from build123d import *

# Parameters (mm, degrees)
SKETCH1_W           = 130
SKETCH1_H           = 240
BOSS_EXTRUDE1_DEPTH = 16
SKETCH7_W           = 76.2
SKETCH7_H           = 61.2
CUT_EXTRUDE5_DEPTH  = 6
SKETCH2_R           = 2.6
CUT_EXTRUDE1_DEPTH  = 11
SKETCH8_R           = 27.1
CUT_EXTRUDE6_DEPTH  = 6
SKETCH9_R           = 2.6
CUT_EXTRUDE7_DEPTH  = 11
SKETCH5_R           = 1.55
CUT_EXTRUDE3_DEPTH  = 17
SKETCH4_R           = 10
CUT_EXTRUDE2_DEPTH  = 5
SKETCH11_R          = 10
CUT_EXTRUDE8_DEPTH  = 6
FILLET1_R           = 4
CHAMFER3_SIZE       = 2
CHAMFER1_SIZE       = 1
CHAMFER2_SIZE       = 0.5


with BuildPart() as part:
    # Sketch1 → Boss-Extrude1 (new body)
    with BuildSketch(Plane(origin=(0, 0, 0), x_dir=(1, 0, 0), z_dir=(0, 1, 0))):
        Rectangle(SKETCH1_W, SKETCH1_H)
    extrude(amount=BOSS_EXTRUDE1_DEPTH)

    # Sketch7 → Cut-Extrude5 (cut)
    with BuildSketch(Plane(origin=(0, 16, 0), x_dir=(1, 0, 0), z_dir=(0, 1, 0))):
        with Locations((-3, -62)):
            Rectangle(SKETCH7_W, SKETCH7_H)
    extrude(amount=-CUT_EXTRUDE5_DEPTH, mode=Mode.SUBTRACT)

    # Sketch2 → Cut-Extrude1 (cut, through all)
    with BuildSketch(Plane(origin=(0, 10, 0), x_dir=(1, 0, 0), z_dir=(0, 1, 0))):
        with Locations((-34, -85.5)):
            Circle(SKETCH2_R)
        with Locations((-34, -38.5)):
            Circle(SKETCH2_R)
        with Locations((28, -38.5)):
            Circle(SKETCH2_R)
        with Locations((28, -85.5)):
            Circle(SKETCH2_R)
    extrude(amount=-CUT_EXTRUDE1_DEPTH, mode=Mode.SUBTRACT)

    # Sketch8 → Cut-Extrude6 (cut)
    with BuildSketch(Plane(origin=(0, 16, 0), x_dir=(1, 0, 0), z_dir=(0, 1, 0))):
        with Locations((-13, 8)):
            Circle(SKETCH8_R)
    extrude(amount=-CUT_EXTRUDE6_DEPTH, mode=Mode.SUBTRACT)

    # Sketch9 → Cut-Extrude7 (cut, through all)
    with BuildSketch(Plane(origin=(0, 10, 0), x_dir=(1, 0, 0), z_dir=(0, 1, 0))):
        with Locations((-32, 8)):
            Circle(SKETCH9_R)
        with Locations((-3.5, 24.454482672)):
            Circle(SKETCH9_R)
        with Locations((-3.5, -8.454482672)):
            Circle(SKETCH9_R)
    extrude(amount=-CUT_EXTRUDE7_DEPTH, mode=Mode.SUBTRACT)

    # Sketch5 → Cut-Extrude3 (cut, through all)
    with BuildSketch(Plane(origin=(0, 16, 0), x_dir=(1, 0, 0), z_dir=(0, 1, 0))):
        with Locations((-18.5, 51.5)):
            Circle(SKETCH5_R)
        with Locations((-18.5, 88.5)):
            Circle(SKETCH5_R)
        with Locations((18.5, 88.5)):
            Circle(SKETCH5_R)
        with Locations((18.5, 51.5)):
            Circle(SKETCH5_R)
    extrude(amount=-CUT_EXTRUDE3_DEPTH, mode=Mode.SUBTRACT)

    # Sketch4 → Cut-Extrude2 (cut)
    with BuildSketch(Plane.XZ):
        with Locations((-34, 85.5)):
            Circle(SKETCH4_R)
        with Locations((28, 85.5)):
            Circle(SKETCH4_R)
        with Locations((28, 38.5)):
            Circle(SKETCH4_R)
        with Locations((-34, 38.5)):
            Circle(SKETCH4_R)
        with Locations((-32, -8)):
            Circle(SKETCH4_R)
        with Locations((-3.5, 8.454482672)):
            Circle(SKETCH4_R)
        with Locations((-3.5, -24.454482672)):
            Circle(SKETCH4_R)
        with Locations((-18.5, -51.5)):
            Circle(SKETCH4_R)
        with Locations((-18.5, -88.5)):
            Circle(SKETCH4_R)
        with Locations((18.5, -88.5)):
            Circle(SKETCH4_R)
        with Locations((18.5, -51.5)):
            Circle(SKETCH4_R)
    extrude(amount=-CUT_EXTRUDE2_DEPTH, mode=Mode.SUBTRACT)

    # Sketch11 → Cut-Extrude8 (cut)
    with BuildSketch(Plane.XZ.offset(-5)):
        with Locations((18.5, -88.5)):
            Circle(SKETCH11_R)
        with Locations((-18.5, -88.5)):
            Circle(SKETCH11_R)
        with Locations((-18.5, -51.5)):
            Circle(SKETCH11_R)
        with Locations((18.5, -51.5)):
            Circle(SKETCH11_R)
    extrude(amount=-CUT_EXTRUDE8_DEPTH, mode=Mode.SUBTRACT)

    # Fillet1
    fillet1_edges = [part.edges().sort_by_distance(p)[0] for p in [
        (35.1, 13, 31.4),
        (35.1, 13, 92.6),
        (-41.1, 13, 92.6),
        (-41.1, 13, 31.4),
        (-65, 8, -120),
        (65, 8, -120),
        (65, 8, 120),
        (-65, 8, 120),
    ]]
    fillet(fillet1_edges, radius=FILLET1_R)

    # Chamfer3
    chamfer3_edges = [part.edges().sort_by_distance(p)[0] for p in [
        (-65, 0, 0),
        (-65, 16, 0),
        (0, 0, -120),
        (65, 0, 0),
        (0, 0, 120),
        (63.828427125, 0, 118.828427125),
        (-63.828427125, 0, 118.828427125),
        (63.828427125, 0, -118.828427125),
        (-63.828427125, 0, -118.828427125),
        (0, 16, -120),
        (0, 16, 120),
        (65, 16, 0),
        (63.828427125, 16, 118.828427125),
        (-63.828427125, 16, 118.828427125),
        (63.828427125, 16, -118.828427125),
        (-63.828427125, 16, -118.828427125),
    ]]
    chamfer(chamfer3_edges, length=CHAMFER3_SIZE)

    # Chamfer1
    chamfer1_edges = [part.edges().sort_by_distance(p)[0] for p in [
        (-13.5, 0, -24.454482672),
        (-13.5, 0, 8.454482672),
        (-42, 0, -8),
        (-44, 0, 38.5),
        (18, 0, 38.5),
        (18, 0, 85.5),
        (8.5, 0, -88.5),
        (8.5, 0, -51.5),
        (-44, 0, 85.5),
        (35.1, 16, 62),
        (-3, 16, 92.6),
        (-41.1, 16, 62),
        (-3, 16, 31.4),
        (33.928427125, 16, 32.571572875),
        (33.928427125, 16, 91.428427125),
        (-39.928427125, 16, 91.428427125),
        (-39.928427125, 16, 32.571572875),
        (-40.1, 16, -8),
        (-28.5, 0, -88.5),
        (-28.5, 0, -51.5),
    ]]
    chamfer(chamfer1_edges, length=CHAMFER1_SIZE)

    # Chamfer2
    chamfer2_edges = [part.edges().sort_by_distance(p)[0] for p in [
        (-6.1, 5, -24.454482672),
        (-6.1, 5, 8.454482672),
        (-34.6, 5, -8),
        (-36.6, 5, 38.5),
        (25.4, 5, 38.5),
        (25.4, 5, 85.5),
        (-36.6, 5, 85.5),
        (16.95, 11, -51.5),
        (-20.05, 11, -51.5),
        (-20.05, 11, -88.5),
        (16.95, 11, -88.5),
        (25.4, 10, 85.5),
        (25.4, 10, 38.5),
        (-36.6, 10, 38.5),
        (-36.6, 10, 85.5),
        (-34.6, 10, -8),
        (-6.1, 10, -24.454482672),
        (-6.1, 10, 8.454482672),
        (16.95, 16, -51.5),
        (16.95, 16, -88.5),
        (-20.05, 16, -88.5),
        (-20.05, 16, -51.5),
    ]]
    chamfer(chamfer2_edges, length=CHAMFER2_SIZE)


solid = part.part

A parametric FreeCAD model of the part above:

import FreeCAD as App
import Part
import Sketcher


def edges_at(feature, points):
    """Names of the edges that pass closest to the given points."""
    edges = feature.Shape.Edges
    near = lambda p: min(range(len(edges)), key=lambda i: edges[i].distToShape(Part.Vertex(*p))[0])
    return sorted({f"Edge{near(p) + 1}" for p in points})

doc = App.newDocument("Part")
params = doc.addObject("Spreadsheet::Sheet", "Params")
for row, (alias, value) in enumerate([
    ("sketch1_width", "130 mm"),
    ("sketch1_height", "240 mm"),
    ("pad1_length", "16 mm"),
    ("sketch2_width", "76.2 mm"),
    ("sketch2_height", "61.2 mm"),
    ("pocket1_length", "6 mm"),
    ("sketch3_diameter", "5.2 mm"),
    ("sketch4_diameter", "54.2 mm"),
    ("pocket3_length", "6 mm"),
    ("sketch5_diameter", "5.2 mm"),
    ("sketch6_diameter", "3.1 mm"),
    ("sketch7_diameter", "20 mm"),
    ("pocket6_length", "5 mm"),
    ("sketch8_diameter", "20 mm"),
    ("pocket7_length", "6 mm"),
    ("fillet_radius", "4 mm"),
    ("chamfer_size", "2 mm"),
    ("chamfer2_size", "1 mm"),
    ("chamfer3_size", "0.5 mm"),
], start=1):
    params.set(f"A{row}", alias)
    params.set(f"B{row}", "=" + value)
    params.setAlias(f"B{row}", alias)

body = doc.addObject("PartDesign::Body", "Body")

# Sketch on XZ plane
sketch1 = body.newObject("Sketcher::SketchObject", "Sketch")
sketch1.AttachmentSupport = (doc.getObject("XZ_Plane"), [""])
sketch1.MapMode = "FlatFace"
sketch1.addGeometry([
    Part.LineSegment(App.Vector(-65, -120, 0), App.Vector(-65, 120, 0)),
    Part.LineSegment(App.Vector(-65, 120, 0), App.Vector(65, 120, 0)),
    Part.LineSegment(App.Vector(65, 120, 0), App.Vector(65, -120, 0)),
    Part.LineSegment(App.Vector(65, -120, 0), App.Vector(-65, -120, 0)),
], False)
sketch1.addConstraint([
    Sketcher.Constraint("Coincident", 0, 2, 1, 1),
    Sketcher.Constraint("Coincident", 1, 2, 2, 1),
    Sketcher.Constraint("Coincident", 2, 2, 3, 1),
    Sketcher.Constraint("Coincident", 3, 2, 0, 1),
    Sketcher.Constraint("Vertical", 0),
    Sketcher.Constraint("Horizontal", 1),
    Sketcher.Constraint("Vertical", 2),
    Sketcher.Constraint("Horizontal", 3),
    Sketcher.Constraint("Symmetric", 0, 2, 2, 2, -1, 1),
    Sketcher.Constraint("DistanceX", 1, 1, 1, 2, 130.0),
    Sketcher.Constraint("DistanceY", 0, 1, 0, 2, 240.0),
])
sketch1.setExpression("Constraints[9]", "Params.sketch1_width")
sketch1.setExpression("Constraints[10]", "Params.sketch1_height")
pad1 = body.newObject("PartDesign::Pad", "Pad")
pad1.Profile = sketch1
pad1.setExpression("Length", "Params.pad1_length")
pad1.Reversed = True

# Sketch on XZ plane
sketch2 = body.newObject("Sketcher::SketchObject", "Sketch001")
sketch2.AttachmentSupport = (doc.getObject("XZ_Plane"), [""])
sketch2.MapMode = "FlatFace"
sketch2.AttachmentOffset = App.Placement(App.Vector(0, 0, -16), App.Rotation())
sketch2.addGeometry([
    Part.LineSegment(App.Vector(-41, 31, 0), App.Vector(-41, 93, 0)),
    Part.LineSegment(App.Vector(-41, 93, 0), App.Vector(35, 93, 0)),
    Part.LineSegment(App.Vector(35, 93, 0), App.Vector(35, 31, 0)),
    Part.LineSegment(App.Vector(35, 31, 0), App.Vector(-41, 31, 0)),
], False)
sketch2.addConstraint([
    Sketcher.Constraint("Coincident", 0, 2, 1, 1),
    Sketcher.Constraint("Coincident", 1, 2, 2, 1),
    Sketcher.Constraint("Coincident", 2, 2, 3, 1),
    Sketcher.Constraint("Coincident", 3, 2, 0, 1),
    Sketcher.Constraint("Vertical", 0),
    Sketcher.Constraint("Horizontal", 1),
    Sketcher.Constraint("Vertical", 2),
    Sketcher.Constraint("Horizontal", 3),
    Sketcher.Constraint("DistanceX", 1, 1, 1, 2, 76.2),
    Sketcher.Constraint("DistanceY", 0, 1, 0, 2, 61.2),
    Sketcher.Constraint("DistanceX", 0, 2, -1, 1, 41.1),
    Sketcher.Constraint("DistanceY", -1, 1, 0, 2, 92.6),
])
sketch2.setExpression("Constraints[8]", "Params.sketch2_width")
sketch2.setExpression("Constraints[9]", "Params.sketch2_height")
pocket1 = body.newObject("PartDesign::Pocket", "Pocket")
pocket1.Profile = sketch2
pocket1.setExpression("Length", "Params.pocket1_length")
pocket1.Reversed = True

# Sketch on XZ plane
sketch3 = body.newObject("Sketcher::SketchObject", "Sketch002")
sketch3.AttachmentSupport = (doc.getObject("XZ_Plane"), [""])
sketch3.MapMode = "FlatFace"
sketch3.AttachmentOffset = App.Placement(App.Vector(0, 0, -10), App.Rotation())
sketch3.addGeometry([
    Part.Circle(App.Vector(-34, 85.5, 0), App.Vector(0, 0, 1), 2.6),
    Part.Circle(App.Vector(-34, 38.5, 0), App.Vector(0, 0, 1), 2.6),
    Part.Circle(App.Vector(28, 38.5, 0), App.Vector(0, 0, 1), 2.6),
    Part.Circle(App.Vector(28, 85.5, 0), App.Vector(0, 0, 1), 2.6),
], False)
sketch3.addConstraint([
    Sketcher.Constraint("Equal", 0, 1),
    Sketcher.Constraint("Equal", 1, 2),
    Sketcher.Constraint("Equal", 2, 3),
    Sketcher.Constraint("Horizontal", 1, 3, 2, 3),
    Sketcher.Constraint("Horizontal", 0, 3, 3, 3),
    Sketcher.Constraint("Vertical", 0, 3, 1, 3),
    Sketcher.Constraint("Vertical", 2, 3, 3, 3),
    Sketcher.Constraint("Diameter", 0, 5.2),
    Sketcher.Constraint("DistanceX", 0, 3, -1, 1, 34.0),
    Sketcher.Constraint("DistanceX", -1, 1, 2, 3, 28.0),
    Sketcher.Constraint("DistanceY", 1, 3, 0, 3, 47.0),
    Sketcher.Constraint("DistanceY", -1, 1, 0, 3, 85.5),
])
sketch3.setExpression("Constraints[7]", "Params.sketch3_diameter")
pocket2 = body.newObject("PartDesign::Pocket", "Pocket001")
pocket2.Profile = sketch3
pocket2.Type = "ThroughAll"
pocket2.Reversed = True

# Sketch on XZ plane
sketch4 = body.newObject("Sketcher::SketchObject", "Sketch003")
sketch4.AttachmentSupport = (doc.getObject("XZ_Plane"), [""])
sketch4.MapMode = "FlatFace"
sketch4.AttachmentOffset = App.Placement(App.Vector(0, 0, -16), App.Rotation())
sketch4.addGeometry(Part.Circle(App.Vector(-13, -8, 0), App.Vector(0, 0, 1), 27), False)
sketch4.addConstraint([
    Sketcher.Constraint("Diameter", 0, 54.2),
    Sketcher.Constraint("DistanceX", 0, 3, -1, 1, 13.0),
    Sketcher.Constraint("DistanceY", 0, 3, -1, 1, 8.0),
])
sketch4.setExpression("Constraints[0]", "Params.sketch4_diameter")
pocket3 = body.newObject("PartDesign::Pocket", "Pocket002")
pocket3.Profile = sketch4
pocket3.setExpression("Length", "Params.pocket3_length")
pocket3.Reversed = True

# Sketch on XZ plane
sketch5 = body.newObject("Sketcher::SketchObject", "Sketch004")
sketch5.AttachmentSupport = (doc.getObject("XZ_Plane"), [""])
sketch5.MapMode = "FlatFace"
sketch5.AttachmentOffset = App.Placement(App.Vector(0, 0, -10), App.Rotation())
sketch5.addGeometry([
    Part.Circle(App.Vector(-32, -8, 0), App.Vector(0, 0, 1), 2.6),
    Part.Circle(App.Vector(-3.5, -24.5, 0), App.Vector(0, 0, 1), 2.6),
    Part.Circle(App.Vector(-3.5, 8.5, 0), App.Vector(0, 0, 1), 2.6),
], False)
sketch5.addConstraint([
    Sketcher.Constraint("Equal", 0, 1),
    Sketcher.Constraint("Equal", 1, 2),
    Sketcher.Constraint("Vertical", 1, 3, 2, 3),
    Sketcher.Constraint("Diameter", 0, 5.2),
    Sketcher.Constraint("DistanceX", 0, 3, -1, 1, 32.0),
    Sketcher.Constraint("DistanceY", 0, 3, -1, 1, 8.0),
    Sketcher.Constraint("DistanceX", 1, 3, -1, 1, 3.5),
    Sketcher.Constraint("DistanceY", 1, 3, -1, 1, 24.454483),
    Sketcher.Constraint("DistanceY", -1, 1, 2, 3, 8.454483),
])
sketch5.setExpression("Constraints[3]", "Params.sketch5_diameter")
pocket4 = body.newObject("PartDesign::Pocket", "Pocket003")
pocket4.Profile = sketch5
pocket4.Type = "ThroughAll"
pocket4.Reversed = True

# Sketch on XZ plane
sketch6 = body.newObject("Sketcher::SketchObject", "Sketch005")
sketch6.AttachmentSupport = (doc.getObject("XZ_Plane"), [""])
sketch6.MapMode = "FlatFace"
sketch6.AttachmentOffset = App.Placement(App.Vector(0, 0, -16), App.Rotation())
sketch6.addGeometry([
    Part.Circle(App.Vector(-18.5, -51.5, 0), App.Vector(0, 0, 1), 1.6),
    Part.Circle(App.Vector(-18.5, -88.5, 0), App.Vector(0, 0, 1), 1.6),
    Part.Circle(App.Vector(18.5, -88.5, 0), App.Vector(0, 0, 1), 1.6),
    Part.Circle(App.Vector(18.5, -51.5, 0), App.Vector(0, 0, 1), 1.6),
], False)
sketch6.addConstraint([
    Sketcher.Constraint("Equal", 0, 1),
    Sketcher.Constraint("Equal", 1, 2),
    Sketcher.Constraint("Equal", 2, 3),
    Sketcher.Constraint("Symmetric", 1, 3, 2, 3, -2),
    Sketcher.Constraint("Symmetric", 0, 3, 3, 3, -2),
    Sketcher.Constraint("Vertical", 0, 3, 1, 3),
    Sketcher.Constraint("Diameter", 0, 3.1),
    Sketcher.Constraint("DistanceY", 1, 3, 0, 3, 37.0),
    Sketcher.Constraint("DistanceX", 1, 3, 2, 3, 37.0),
    Sketcher.Constraint("DistanceY", 0, 3, -1, 1, 51.5),
])
sketch6.setExpression("Constraints[6]", "Params.sketch6_diameter")
pocket5 = body.newObject("PartDesign::Pocket", "Pocket004")
pocket5.Profile = sketch6
pocket5.Type = "ThroughAll"
pocket5.Reversed = True

# Sketch on XZ plane
sketch7 = body.newObject("Sketcher::SketchObject", "Sketch006")
sketch7.AttachmentSupport = (doc.getObject("XZ_Plane"), [""])
sketch7.MapMode = "FlatFace"
sketch7.addGeometry([
    Part.Circle(App.Vector(-34, 86, 0), App.Vector(0, 0, 1), 10),  # 0
    Part.Circle(App.Vector(28, 86, 0), App.Vector(0, 0, 1), 10),  # 1
    Part.Circle(App.Vector(28, 38, 0), App.Vector(0, 0, 1), 10),  # 2
    Part.Circle(App.Vector(-34, 38, 0), App.Vector(0, 0, 1), 10),  # 3
    Part.Circle(App.Vector(-32, -8, 0), App.Vector(0, 0, 1), 10),  # 4
    Part.Circle(App.Vector(-4, 8, 0), App.Vector(0, 0, 1), 10),  # 5
    Part.Circle(App.Vector(-4, -24, 0), App.Vector(0, 0, 1), 10),  # 6
    Part.Circle(App.Vector(-18, -52, 0), App.Vector(0, 0, 1), 10),  # 7
    Part.Circle(App.Vector(-18, -88, 0), App.Vector(0, 0, 1), 10),  # 8
    Part.Circle(App.Vector(18, -88, 0), App.Vector(0, 0, 1), 10),  # 9
    Part.Circle(App.Vector(18, -52, 0), App.Vector(0, 0, 1), 10),  # 10
], False)
sketch7.addConstraint([
    Sketcher.Constraint("Equal", 0, 1),
    Sketcher.Constraint("Equal", 1, 2),
    Sketcher.Constraint("Equal", 2, 3),
    Sketcher.Constraint("Equal", 3, 4),
    Sketcher.Constraint("Equal", 4, 5),
    Sketcher.Constraint("Equal", 5, 6),
    Sketcher.Constraint("Equal", 6, 7),
    Sketcher.Constraint("Equal", 7, 8),
    Sketcher.Constraint("Equal", 8, 9),
    Sketcher.Constraint("Equal", 9, 10),
    Sketcher.Constraint("Symmetric", 8, 3, 9, 3, -2),
    Sketcher.Constraint("Symmetric", 7, 3, 10, 3, -2),
    Sketcher.Constraint("Horizontal", 0, 3, 1, 3),
    Sketcher.Constraint("Horizontal", 2, 3, 3, 3),
    Sketcher.Constraint("Vertical", 1, 3, 2, 3),
    Sketcher.Constraint("Vertical", 0, 3, 3, 3),
    Sketcher.Constraint("Vertical", 5, 3, 6, 3),
    Sketcher.Constraint("Vertical", 7, 3, 8, 3),
    Sketcher.Constraint("Diameter", 0, 20.0),
    Sketcher.Constraint("DistanceX", 0, 3, -1, 1, 34.0),
    Sketcher.Constraint("DistanceX", -1, 1, 1, 3, 28.0),
    Sketcher.Constraint("DistanceX", 4, 3, -1, 1, 32.0),
    Sketcher.Constraint("DistanceY", 4, 3, -1, 1, 8.0),
    Sketcher.Constraint("DistanceY", 2, 3, 1, 3, 47.0),
    Sketcher.Constraint("DistanceX", 7, 3, 6, 3, 15.0),
    Sketcher.Constraint("DistanceY", 7, 3, 3, 3, 90.0),
    Sketcher.Constraint("DistanceY", 8, 3, 7, 3, 37.0),
    Sketcher.Constraint("DistanceX", 8, 3, 9, 3, 37.0),
    Sketcher.Constraint("DistanceY", -1, 1, 0, 3, 85.5),
    Sketcher.Constraint("DistanceY", -1, 1, 5, 3, 8.454483),
    Sketcher.Constraint("DistanceY", 6, 3, -1, 1, 24.454483),
])
sketch7.setExpression("Constraints[18]", "Params.sketch7_diameter")
pocket6 = body.newObject("PartDesign::Pocket", "Pocket005")
pocket6.Profile = sketch7
pocket6.setExpression("Length", "Params.pocket6_length")

# Sketch on XZ plane
sketch8 = body.newObject("Sketcher::SketchObject", "Sketch007")
sketch8.AttachmentSupport = (doc.getObject("XZ_Plane"), [""])
sketch8.MapMode = "FlatFace"
sketch8.AttachmentOffset = App.Placement(App.Vector(0, 0, -5), App.Rotation())
sketch8.addGeometry([
    Part.Circle(App.Vector(18, -88, 0), App.Vector(0, 0, 1), 10),
    Part.Circle(App.Vector(-18, -88, 0), App.Vector(0, 0, 1), 10),
    Part.Circle(App.Vector(-18, -52, 0), App.Vector(0, 0, 1), 10),
    Part.Circle(App.Vector(18, -52, 0), App.Vector(0, 0, 1), 10),
], False)
sketch8.addConstraint([
    Sketcher.Constraint("Equal", 0, 1),
    Sketcher.Constraint("Equal", 1, 2),
    Sketcher.Constraint("Equal", 2, 3),
    Sketcher.Constraint("Symmetric", 0, 3, 1, 3, -2),
    Sketcher.Constraint("Symmetric", 2, 3, 3, 3, -2),
    Sketcher.Constraint("Vertical", 1, 3, 2, 3),
    Sketcher.Constraint("Diameter", 0, 20.0),
    Sketcher.Constraint("DistanceX", 1, 3, 0, 3, 37.0),
    Sketcher.Constraint("DistanceY", 1, 3, 2, 3, 37.0),
    Sketcher.Constraint("DistanceY", 0, 3, -1, 1, 88.5),
])
sketch8.setExpression("Constraints[6]", "Params.sketch8_diameter")
pocket7 = body.newObject("PartDesign::Pocket", "Pocket006")
pocket7.Profile = sketch8
pocket7.setExpression("Length", "Params.pocket7_length")
doc.recompute()

fillet = body.newObject("PartDesign::Fillet", "Fillet")
fillet.Base = (pocket7, edges_at(pocket7, [
    (35.1, 13, 31.4),
    (35.1, 13, 92.6),
    (-41.1, 13, 92.6),
    (-41.1, 13, 31.4),
    (-65, 8, -120),
    (65, 8, -120),
    (65, 8, 120),
    (-65, 8, 120),
]))
fillet.setExpression("Radius", "Params.fillet_radius")
doc.recompute()

chamfer = body.newObject("PartDesign::Chamfer", "Chamfer")
chamfer.Base = (fillet, edges_at(fillet, [
    (-65, 0, 0),
    (-65, 16, 0),
    (0, 0, -120),
    (65, 0, 0),
    (0, 0, 120),
    (63.828, 0, 118.828),
    (-63.828, 0, 118.828),
    (63.828, 0, -118.828),
    (-63.828, 0, -118.828),
    (0, 16, -120),
    (0, 16, 120),
    (65, 16, 0),
    (63.828, 16, 118.828),
    (-63.828, 16, 118.828),
    (63.828, 16, -118.828),
    (-63.828, 16, -118.828),
]))
chamfer.setExpression("Size", "Params.chamfer_size")
doc.recompute()

chamfer2 = body.newObject("PartDesign::Chamfer", "Chamfer001")
chamfer2.Base = (chamfer, edges_at(chamfer, [
    (-13.5, 0, -24.454),
    (-13.5, 0, 8.454),
    (-42, 0, -8),
    (-44, 0, 38.5),
    (18, 0, 38.5),
    (18, 0, 85.5),
    (8.5, 0, -88.5),
    (8.5, 0, -51.5),
    (-44, 0, 85.5),
    (35.1, 16, 62),
    (-3, 16, 92.6),
    (-41.1, 16, 62),
    (-3, 16, 31.4),
    (33.928, 16, 32.572),
    (33.928, 16, 91.428),
    (-39.928, 16, 91.428),
    (-39.928, 16, 32.572),
    (-40.1, 16, -8),
    (-28.5, 0, -88.5),
    (-28.5, 0, -51.5),
]))
chamfer2.setExpression("Size", "Params.chamfer2_size")
doc.recompute()

chamfer3 = body.newObject("PartDesign::Chamfer", "Chamfer002")
chamfer3.Base = (chamfer2, edges_at(chamfer2, [
    (-6.1, 5, -24.454),
    (-6.1, 5, 8.454),
    (-34.6, 5, -8),
    (-36.6, 5, 38.5),
    (25.4, 5, 38.5),
    (25.4, 5, 85.5),
    (-36.6, 5, 85.5),
    (16.95, 11, -51.5),
    (-20.05, 11, -51.5),
    (-20.05, 11, -88.5),
    (16.95, 11, -88.5),
    (25.4, 10, 85.5),
    (25.4, 10, 38.5),
    (-36.6, 10, 38.5),
    (-36.6, 10, 85.5),
    (-34.6, 10, -8),
    (-6.1, 10, -24.454),
    (-6.1, 10, 8.454),
    (16.95, 16, -51.5),
    (16.95, 16, -88.5),
    (-20.05, 16, -88.5),
    (-20.05, 16, -51.5),
]))
chamfer3.setExpression("Size", "Params.chamfer3_size")

doc.recompute()
